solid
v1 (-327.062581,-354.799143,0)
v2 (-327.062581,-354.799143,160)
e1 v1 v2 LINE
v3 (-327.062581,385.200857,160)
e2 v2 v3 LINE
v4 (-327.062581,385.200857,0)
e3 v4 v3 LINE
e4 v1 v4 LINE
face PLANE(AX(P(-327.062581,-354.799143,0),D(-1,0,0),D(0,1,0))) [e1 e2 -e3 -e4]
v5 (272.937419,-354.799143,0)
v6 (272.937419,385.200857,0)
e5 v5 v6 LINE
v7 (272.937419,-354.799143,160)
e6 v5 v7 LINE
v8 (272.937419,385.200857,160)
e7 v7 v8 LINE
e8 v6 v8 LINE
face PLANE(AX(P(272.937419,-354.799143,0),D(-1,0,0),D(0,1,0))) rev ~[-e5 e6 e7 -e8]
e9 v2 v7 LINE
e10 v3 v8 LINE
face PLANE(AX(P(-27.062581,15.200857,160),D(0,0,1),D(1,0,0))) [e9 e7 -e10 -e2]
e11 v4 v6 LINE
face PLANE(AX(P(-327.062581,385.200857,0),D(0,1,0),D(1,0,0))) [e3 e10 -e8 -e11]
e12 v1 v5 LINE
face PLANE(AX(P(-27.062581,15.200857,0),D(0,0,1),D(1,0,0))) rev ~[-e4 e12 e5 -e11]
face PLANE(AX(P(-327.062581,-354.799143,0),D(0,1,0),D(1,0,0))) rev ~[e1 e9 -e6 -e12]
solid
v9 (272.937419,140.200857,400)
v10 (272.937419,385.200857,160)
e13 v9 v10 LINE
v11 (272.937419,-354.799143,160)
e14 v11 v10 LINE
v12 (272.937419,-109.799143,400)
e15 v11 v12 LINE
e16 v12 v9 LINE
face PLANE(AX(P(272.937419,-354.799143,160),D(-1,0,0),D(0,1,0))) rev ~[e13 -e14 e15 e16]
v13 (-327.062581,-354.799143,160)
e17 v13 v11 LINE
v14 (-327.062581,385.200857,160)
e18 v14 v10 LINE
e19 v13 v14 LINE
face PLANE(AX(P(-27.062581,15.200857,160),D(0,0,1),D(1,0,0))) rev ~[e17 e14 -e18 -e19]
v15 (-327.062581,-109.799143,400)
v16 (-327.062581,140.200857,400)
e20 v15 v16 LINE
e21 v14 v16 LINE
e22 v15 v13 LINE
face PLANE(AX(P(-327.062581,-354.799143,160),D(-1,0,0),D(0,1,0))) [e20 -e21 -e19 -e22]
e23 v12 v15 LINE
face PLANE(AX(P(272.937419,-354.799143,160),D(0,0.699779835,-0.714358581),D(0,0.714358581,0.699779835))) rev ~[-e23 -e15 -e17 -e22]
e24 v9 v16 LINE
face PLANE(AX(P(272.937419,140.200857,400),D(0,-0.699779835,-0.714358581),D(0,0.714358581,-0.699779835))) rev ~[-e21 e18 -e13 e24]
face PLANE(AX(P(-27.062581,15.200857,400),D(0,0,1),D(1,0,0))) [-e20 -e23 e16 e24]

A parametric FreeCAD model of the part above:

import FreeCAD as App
import Part
import Sketcher

V = App.Vector
Q = App.Units.Quantity


def add_polygon(sketch, points):
    """Adds a closed chain of lines whose ends are joined by coincident constraints."""
    first, n = sketch.GeometryCount, len(points)
    for a, b in zip(points, points[1:] + points[:1]):
        sketch.addGeometry(Part.LineSegment(App.Vector(*a, 0), App.Vector(*b, 0)), False)
    for i in range(n):
        sketch.addConstraint(Sketcher.Constraint("Coincident", first + i, 2, first + (i + 1) % n, 1))

doc = App.newDocument("Part")
body = doc.addObject("PartDesign::Body", "Body")

# Sketch on XY plane
sketch1 = body.newObject("Sketcher::SketchObject", "Sketch")
sketch1.AttachmentSupport = (doc.getObject("XY_Plane"), [""])
sketch1.MapMode = "FlatFace"
add_polygon(sketch1, [(-327, 385), (-327, -355), (273, -355), (273, 385)])  # lines 0-3
sketch1.addConstraint([
    Sketcher.Constraint("Vertical", 0),
    Sketcher.Constraint("Horizontal", 1),
    Sketcher.Constraint("Vertical", 2),
    Sketcher.Constraint("Horizontal", 3),
    Sketcher.Constraint("DistanceX", 1, 1, 1, 2, Q("600 mm")),
    Sketcher.Constraint("DistanceY", 0, 2, 0, 1, Q("740 mm")),
    Sketcher.Constraint("DistanceX", 0, 2, -1, 1, Q("327.062581 mm")),
    Sketcher.Constraint("DistanceY", 0, 2, -1, 1, Q("354.799143 mm")),
])
pad1 = body.newObject("PartDesign::Pad", "Pad")
pad1.Profile = sketch1
pad1.Length = 160
body2 = doc.addObject("PartDesign::Body", "Body001")

# Sketch on XY plane
sketch2 = body2.newObject("Sketcher::SketchObject", "Sketch001")
sketch2.AttachmentSupport = (doc.getObject("XY_Plane001"), [""])
sketch2.MapMode = "FlatFace"
sketch2.AttachmentOffset = App.Placement(V(0, 0, 160), App.Rotation())
add_polygon(sketch2, [(-327, 385), (-327, -355), (273, -355), (273, 385)])  # lines 0-3
sketch2.addConstraint([
    Sketcher.Constraint("Vertical", 0),
    Sketcher.Constraint("Horizontal", 1),
    Sketcher.Constraint("Vertical", 2),
    Sketcher.Constraint("Horizontal", 3),
    Sketcher.Constraint("DistanceX", 1, 1, 1, 2, Q("600 mm")),
    Sketcher.Constraint("DistanceY", 0, 2, 0, 1, Q("740 mm")),
    Sketcher.Constraint("DistanceX", 0, 2, -1, 1, Q("327.062581 mm")),
    Sketcher.Constraint("DistanceY", 0, 2, -1, 1, Q("354.799143 mm")),
])
pad2 = body2.newObject("PartDesign::Pad", "Pad001")
pad2.Profile = sketch2
pad2.Length = 240

# Sketch on YZ plane
sketch3 = body2.newObject("Sketcher::SketchObject", "Sketch002")
sketch3.AttachmentSupport = (doc.getObject("YZ_Plane001"), [""])
sketch3.MapMode = "FlatFace"
sketch3.AttachmentOffset = App.Placement(V(0, 0, 272.937419), App.Rotation())
add_polygon(sketch3, [(-355, 160), (-110, 400), (-355, 400)])  # lines 0-2
add_polygon(sketch3, [(385, 400), (140, 400), (385, 160)])  # lines 3-5
sketch3.addConstraint([
    Sketcher.Constraint("Horizontal", 1),
    Sketcher.Constraint("Vertical", 2),
    Sketcher.Constraint("Horizontal", 3),
    Sketcher.Constraint("Vertical", 5),
    Sketcher.Constraint("Horizontal", 1, 2, 3, 2),
    Sketcher.Constraint("Horizontal", 2, 2, 4, 2),
    Sketcher.Constraint("Equal", 1, 3),
    Sketcher.Constraint("DistanceX", 1, 2, 1, 1, Q("245 mm")),
    Sketcher.Constraint("DistanceY", 2, 2, 2, 1, Q("240 mm")),
    Sketcher.Constraint("DistanceY", -1, 1, 0, 2, Q("400 mm")),
    Sketcher.Constraint("DistanceX", 0, 2, 3, 2, Q("250 mm")),
    Sketcher.Constraint("DistanceX", 0, 2, -1, 1, Q("109.799143 mm")),
])
pocket1 = body2.newObject("PartDesign::Pocket", "Pocket")
pocket1.Profile = sketch3
pocket1.Type = "ThroughAll"

doc.recompute()
